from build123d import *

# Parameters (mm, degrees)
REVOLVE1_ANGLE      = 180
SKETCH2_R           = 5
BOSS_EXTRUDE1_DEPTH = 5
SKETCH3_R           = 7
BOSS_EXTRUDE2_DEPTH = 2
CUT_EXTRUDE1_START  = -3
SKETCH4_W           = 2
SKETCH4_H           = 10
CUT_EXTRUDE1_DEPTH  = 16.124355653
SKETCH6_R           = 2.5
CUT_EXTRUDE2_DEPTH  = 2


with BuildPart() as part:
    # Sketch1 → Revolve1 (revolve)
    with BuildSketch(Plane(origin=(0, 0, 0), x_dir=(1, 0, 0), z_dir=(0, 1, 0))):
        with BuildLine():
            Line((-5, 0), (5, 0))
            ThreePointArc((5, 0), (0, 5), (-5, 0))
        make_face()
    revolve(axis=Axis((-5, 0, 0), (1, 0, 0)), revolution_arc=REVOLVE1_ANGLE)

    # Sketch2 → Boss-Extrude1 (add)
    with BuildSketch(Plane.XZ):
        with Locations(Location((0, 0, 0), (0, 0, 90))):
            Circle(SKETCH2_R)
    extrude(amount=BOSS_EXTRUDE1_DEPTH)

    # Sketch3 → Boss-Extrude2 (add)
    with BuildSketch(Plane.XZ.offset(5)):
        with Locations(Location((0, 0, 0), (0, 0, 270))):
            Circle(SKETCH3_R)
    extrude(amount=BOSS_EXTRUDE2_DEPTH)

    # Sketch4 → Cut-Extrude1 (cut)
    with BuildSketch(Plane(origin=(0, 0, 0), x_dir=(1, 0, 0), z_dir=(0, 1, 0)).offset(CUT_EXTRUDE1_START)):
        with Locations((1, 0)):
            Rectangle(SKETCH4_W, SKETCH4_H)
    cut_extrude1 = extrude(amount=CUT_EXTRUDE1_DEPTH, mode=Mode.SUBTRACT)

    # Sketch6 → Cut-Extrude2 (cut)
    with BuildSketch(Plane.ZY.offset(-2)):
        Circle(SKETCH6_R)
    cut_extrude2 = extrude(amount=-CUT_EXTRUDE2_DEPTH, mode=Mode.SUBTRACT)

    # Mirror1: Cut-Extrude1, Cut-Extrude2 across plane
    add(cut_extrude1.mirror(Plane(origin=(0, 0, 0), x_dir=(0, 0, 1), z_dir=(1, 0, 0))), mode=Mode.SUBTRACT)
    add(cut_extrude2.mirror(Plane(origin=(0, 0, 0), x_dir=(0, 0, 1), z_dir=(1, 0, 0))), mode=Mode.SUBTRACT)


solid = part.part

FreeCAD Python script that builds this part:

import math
import FreeCAD as App
import Part
import Sketcher
from FreeCAD import Vector


def add_polygon(sketch, points):
    """Adds a closed chain of lines whose ends are joined by coincident constraints."""
    first, n = sketch.GeometryCount, len(points)
    for a, b in zip(points, points[1:] + points[:1]):
        sketch.addGeometry(Part.LineSegment(App.Vector(*a, 0), App.Vector(*b, 0)), False)
    for i in range(n):
        sketch.addConstraint(Sketcher.Constraint("Coincident", first + i, 2, first + (i + 1) % n, 1))

doc = App.newDocument("Part")
body = doc.addObject("PartDesign::Body", "Body")

# Sketch on XZ plane
sketch1 = body.newObject("Sketcher::SketchObject", "Sketch")
sketch1.AttachmentSupport = (doc.getObject("XZ_Plane"), [""])
sketch1.MapMode = "FlatFace"
sketch1.addGeometry([
    Part.LineSegment(Vector(-5, 0, 0), Vector(5, 0, 0)),
    Part.ArcOfCircle(Part.Circle(Vector(0, 0, 0), Vector(0, 0, 1), 5), math.radians(180), math.radians(360)),
], False)
sketch1.addConstraint([
    Sketcher.Constraint("Coincident", 0, 1, 1, 1),
    Sketcher.Constraint("Coincident", 1, 2, 0, 2),
    Sketcher.Constraint("Horizontal", 0),
    Sketcher.Constraint("Coincident", 1, 3, -1, 1),
    Sketcher.Constraint("PointOnObject", 0, 1, -1),
    Sketcher.Constraint("Radius", 1, 5.0),
])
revolution = body.newObject("PartDesign::Revolution", "Revolution")
revolution.Profile = sketch1
revolution.ReferenceAxis = (sketch1, ["H_Axis"])
revolution.Angle = 180

# Sketch on XZ plane
sketch2 = body.newObject("Sketcher::SketchObject", "Sketch001")
sketch2.AttachmentSupport = (doc.getObject("XZ_Plane"), [""])
sketch2.MapMode = "FlatFace"
sketch2.addGeometry(Part.Circle(Vector(0, 0, 0), Vector(0, 0, 1), 5), False)
sketch2.addConstraint([
    Sketcher.Constraint("Coincident", 0, 3, -1, 1),
    Sketcher.Constraint("Diameter", 0, 10.0),
])
pad1 = body.newObject("PartDesign::Pad", "Pad")
pad1.Profile = sketch2
pad1.Length = 5

# Sketch on XZ plane
sketch3 = body.newObject("Sketcher::SketchObject", "Sketch002")
sketch3.AttachmentSupport = (doc.getObject("XZ_Plane"), [""])
sketch3.MapMode = "FlatFace"
sketch3.AttachmentOffset = App.Placement(Vector(0, 0, 5), App.Rotation())
sketch3.addGeometry(Part.Circle(Vector(0, 0, 0), Vector(0, 0, 1), 7), False)
sketch3.addConstraint([
    Sketcher.Constraint("Coincident", 0, 3, -1, 1),
    Sketcher.Constraint("Diameter", 0, 14.0),
])
pad2 = body.newObject("PartDesign::Pad", "Pad001")
pad2.Profile = sketch3
pad2.Length = 2

# Sketch on XZ plane
sketch4 = body.newObject("Sketcher::SketchObject", "Sketch003")
sketch4.AttachmentSupport = (doc.getObject("XZ_Plane"), [""])
sketch4.MapMode = "FlatFace"
sketch4.AttachmentOffset = App.Placement(Vector(0, 0, 3), App.Rotation())
add_polygon(sketch4, [(0, -5), (0, 5), (2, 5), (2, -5)])  # lines 0-3
sketch4.addConstraint([
    Sketcher.Constraint("Vertical", 0),
    Sketcher.Constraint("Horizontal", 1),
    Sketcher.Constraint("Vertical", 2),
    Sketcher.Constraint("Horizontal", 3),
    Sketcher.Constraint("Symmetric", 0, 2, 3, 2, -1, 1),
    Sketcher.Constraint("DistanceX", 1, 1, 1, 2, 2.0),
    Sketcher.Constraint("DistanceY", 0, 1, 0, 2, 10.0),
])
pocket1 = body.newObject("PartDesign::Pocket", "Pocket")
pocket1.Profile = sketch4
pocket1.Length = 16.124356

# Sketch on YZ plane
sketch5 = body.newObject("Sketcher::SketchObject", "Sketch004")
sketch5.AttachmentSupport = (doc.getObject("YZ_Plane"), [""])
sketch5.MapMode = "FlatFace"
sketch5.AttachmentOffset = App.Placement(Vector(0, 0, 2), App.Rotation())
sketch5.addGeometry(Part.Circle(Vector(0, 0, 0), Vector(0, 0, 1), 2.5), False)
sketch5.addConstraint([
    Sketcher.Constraint("Coincident", 0, 3, -1, 1),
    Sketcher.Constraint("Diameter", 0, 5.0),
])
pocket2 = body.newObject("PartDesign::Pocket", "Pocket001")
pocket2.Profile = sketch5
pocket2.Length = 2
pocket2.Reversed = True
doc.recompute()

mirrored = body.newObject("PartDesign::Mirrored", "Mirrored")
mirrored.Originals = [pocket1, pocket2]
mirrored.MirrorPlane = (doc.getObject("YZ_Plane"), [""])
body.Tip = mirrored

doc.recompute()
